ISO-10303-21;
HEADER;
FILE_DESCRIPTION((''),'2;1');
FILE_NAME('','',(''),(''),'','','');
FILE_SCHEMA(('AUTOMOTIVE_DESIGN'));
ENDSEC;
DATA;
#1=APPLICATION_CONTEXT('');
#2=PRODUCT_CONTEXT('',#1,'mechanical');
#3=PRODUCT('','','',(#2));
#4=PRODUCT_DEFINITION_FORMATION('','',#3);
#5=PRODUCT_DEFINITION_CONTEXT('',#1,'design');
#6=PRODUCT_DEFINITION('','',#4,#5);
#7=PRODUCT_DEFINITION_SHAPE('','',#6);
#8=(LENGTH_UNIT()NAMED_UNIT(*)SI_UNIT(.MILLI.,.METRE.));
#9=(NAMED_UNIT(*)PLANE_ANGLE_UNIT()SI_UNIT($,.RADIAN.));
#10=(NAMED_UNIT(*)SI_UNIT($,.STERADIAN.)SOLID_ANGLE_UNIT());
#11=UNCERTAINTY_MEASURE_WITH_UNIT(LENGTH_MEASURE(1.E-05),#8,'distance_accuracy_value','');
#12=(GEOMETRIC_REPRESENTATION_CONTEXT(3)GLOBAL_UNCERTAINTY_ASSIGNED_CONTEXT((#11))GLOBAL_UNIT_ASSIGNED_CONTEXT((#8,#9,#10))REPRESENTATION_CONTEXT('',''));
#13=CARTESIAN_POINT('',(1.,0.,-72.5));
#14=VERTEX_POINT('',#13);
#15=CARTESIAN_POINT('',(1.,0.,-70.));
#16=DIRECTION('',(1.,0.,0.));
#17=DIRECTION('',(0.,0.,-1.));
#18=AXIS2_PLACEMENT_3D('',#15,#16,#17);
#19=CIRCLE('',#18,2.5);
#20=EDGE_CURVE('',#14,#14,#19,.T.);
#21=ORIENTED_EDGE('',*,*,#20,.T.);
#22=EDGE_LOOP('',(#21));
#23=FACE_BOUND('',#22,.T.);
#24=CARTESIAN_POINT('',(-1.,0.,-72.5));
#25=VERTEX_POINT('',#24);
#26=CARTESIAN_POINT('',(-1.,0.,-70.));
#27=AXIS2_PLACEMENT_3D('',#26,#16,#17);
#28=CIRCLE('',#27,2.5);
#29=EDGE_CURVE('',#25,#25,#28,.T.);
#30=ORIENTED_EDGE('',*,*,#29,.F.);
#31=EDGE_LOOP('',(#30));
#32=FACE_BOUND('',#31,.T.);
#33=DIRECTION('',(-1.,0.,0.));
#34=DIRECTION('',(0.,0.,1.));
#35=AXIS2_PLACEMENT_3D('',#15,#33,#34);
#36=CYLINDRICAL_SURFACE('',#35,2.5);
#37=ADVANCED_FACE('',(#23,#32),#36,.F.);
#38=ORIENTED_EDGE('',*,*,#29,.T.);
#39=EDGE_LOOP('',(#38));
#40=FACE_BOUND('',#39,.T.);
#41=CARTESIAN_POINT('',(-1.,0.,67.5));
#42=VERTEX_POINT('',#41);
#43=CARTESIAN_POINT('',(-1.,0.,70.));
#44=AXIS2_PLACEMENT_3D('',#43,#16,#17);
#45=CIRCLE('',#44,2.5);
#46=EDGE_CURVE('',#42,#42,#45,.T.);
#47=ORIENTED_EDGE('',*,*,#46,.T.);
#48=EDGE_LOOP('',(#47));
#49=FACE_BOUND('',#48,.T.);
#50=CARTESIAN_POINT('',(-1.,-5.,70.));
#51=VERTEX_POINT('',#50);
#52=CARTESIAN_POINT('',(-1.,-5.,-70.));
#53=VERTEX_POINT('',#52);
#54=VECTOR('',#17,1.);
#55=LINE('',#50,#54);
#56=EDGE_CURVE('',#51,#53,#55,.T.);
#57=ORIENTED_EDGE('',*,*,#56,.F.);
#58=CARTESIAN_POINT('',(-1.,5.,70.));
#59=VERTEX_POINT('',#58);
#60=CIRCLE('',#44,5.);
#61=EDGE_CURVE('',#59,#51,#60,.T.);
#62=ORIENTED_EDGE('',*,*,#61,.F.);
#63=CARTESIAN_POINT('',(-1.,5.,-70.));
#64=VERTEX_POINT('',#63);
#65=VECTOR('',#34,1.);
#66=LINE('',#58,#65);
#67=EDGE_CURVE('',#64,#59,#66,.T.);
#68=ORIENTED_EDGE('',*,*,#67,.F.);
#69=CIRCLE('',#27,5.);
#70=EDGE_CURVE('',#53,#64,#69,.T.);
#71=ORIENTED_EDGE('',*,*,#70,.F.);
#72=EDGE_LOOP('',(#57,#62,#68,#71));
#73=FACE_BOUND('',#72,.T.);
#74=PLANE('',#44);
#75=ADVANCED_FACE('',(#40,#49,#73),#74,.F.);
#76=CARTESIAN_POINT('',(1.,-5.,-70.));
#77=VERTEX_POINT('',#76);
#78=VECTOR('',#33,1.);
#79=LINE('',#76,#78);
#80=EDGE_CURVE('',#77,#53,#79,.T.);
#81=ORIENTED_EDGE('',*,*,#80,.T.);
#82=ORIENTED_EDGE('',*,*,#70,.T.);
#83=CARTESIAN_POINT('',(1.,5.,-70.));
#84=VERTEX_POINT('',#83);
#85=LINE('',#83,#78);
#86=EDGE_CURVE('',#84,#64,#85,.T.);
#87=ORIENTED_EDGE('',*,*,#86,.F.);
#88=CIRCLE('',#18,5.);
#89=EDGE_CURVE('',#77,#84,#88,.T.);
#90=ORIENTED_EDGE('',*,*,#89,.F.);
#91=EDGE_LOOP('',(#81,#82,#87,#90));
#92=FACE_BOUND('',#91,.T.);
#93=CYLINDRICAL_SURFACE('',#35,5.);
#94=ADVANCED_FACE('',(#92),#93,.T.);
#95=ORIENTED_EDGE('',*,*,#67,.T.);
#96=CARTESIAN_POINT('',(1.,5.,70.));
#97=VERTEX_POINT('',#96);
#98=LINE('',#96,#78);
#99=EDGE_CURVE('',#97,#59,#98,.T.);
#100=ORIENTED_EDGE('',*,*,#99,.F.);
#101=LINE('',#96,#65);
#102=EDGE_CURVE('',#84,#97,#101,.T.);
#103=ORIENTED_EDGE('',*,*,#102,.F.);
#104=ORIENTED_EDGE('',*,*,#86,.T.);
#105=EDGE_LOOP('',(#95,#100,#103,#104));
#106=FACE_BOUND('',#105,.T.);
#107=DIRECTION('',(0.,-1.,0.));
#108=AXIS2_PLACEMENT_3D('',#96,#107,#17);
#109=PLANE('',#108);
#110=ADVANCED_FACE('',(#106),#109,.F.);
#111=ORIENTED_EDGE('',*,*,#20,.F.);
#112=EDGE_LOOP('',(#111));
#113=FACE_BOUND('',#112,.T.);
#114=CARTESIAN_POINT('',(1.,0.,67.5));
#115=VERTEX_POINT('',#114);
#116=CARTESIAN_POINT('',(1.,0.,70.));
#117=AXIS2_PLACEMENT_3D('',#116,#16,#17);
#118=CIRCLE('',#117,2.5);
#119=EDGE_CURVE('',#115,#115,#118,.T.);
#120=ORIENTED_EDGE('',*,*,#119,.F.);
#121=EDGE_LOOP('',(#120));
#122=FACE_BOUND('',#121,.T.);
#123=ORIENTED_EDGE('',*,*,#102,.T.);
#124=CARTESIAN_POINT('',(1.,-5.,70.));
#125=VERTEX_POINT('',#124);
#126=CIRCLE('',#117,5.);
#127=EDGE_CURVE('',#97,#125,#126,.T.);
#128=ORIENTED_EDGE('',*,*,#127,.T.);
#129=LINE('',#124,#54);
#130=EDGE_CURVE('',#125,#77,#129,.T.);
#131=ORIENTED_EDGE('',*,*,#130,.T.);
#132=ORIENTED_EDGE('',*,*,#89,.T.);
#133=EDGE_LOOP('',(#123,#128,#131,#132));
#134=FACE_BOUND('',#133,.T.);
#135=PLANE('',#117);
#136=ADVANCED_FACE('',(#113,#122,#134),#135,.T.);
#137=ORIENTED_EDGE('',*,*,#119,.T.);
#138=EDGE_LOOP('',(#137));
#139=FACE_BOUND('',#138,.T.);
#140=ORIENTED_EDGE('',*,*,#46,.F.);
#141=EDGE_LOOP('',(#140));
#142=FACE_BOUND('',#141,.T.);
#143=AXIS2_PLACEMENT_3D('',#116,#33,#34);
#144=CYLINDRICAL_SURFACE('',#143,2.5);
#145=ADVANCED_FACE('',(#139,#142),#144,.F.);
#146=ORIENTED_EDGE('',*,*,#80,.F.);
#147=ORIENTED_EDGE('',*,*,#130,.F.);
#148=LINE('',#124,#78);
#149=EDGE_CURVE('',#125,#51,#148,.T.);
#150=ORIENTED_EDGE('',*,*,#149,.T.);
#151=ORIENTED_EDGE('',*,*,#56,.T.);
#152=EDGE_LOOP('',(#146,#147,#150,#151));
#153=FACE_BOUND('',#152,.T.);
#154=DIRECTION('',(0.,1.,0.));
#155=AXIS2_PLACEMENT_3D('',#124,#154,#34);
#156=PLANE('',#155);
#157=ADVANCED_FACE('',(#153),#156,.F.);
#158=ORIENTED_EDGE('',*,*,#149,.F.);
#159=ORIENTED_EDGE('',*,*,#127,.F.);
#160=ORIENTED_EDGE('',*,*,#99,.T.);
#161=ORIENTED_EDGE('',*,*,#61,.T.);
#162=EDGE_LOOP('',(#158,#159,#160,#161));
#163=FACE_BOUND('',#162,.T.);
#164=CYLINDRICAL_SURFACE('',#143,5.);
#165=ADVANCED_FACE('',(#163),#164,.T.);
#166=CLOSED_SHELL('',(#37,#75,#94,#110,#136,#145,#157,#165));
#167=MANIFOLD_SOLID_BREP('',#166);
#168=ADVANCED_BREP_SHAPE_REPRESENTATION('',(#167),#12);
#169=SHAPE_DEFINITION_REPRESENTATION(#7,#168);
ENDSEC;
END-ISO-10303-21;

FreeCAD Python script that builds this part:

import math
import FreeCAD as App
import Part
import Sketcher

V = App.Vector
Q = App.Units.Quantity

doc = App.newDocument("Part")
body = doc.addObject("PartDesign::Body", "Body")

# Sketch on YZ plane
sketch1 = body.newObject("Sketcher::SketchObject", "Sketch")
sketch1.AttachmentSupport = (doc.getObject("YZ_Plane"), [""])
sketch1.MapMode = "FlatFace"
sketch1.addGeometry(Part.LineSegment(V(5, -70, 0), V(5, 70, 0)), False)
sketch1.addGeometry(Part.ArcOfCircle(Part.Circle(V(0, 70, 0), V(0, 0, 1), 5), math.radians(0), math.radians(180)), False)
sketch1.addGeometry(Part.LineSegment(V(-5, 70, 0), V(-5, -70, 0)), False)
sketch1.addGeometry(Part.ArcOfCircle(Part.Circle(V(0, -70, 0), V(0, 0, 1), 5), math.radians(180), math.radians(360)), False)
sketch1.addGeometry(Part.Circle(V(0, -70, 0), V(0, 0, 1), 2.5), False)
sketch1.addGeometry(Part.Circle(V(0, 70, 0), V(0, 0, 1), 2.5), False)
sketch1.addConstraint(Sketcher.Constraint("Tangent", 0, 2, 1, 1))
sketch1.addConstraint(Sketcher.Constraint("Tangent", 1, 2, 2, 1))
sketch1.addConstraint(Sketcher.Constraint("Tangent", 2, 2, 3, 1))
sketch1.addConstraint(Sketcher.Constraint("Tangent", 3, 2, 0, 1))
sketch1.addConstraint(Sketcher.Constraint("Vertical", 0))
sketch1.addConstraint(Sketcher.Constraint("Vertical", 2))
sketch1.addConstraint(Sketcher.Constraint("Coincident", 4, 3, 3, 3))
sketch1.addConstraint(Sketcher.Constraint("Coincident", 5, 3, 1, 3))
sketch1.addConstraint(Sketcher.Constraint("Equal", 4, 5))
sketch1.addConstraint(Sketcher.Constraint("Symmetric", 1, 3, 3, 3, -1, 1))
sketch1.addConstraint(Sketcher.Constraint("Diameter", 4, Q("5 mm")))
sketch1.addConstraint(Sketcher.Constraint("Radius", 1, Q("5 mm")))
sketch1.addConstraint(Sketcher.Constraint("DistanceY", 0, 1, 0, 2, Q("140 mm")))
pad1 = body.newObject("PartDesign::Pad", "Pad")
pad1.Profile = sketch1
pad1.Length = 2
pad1.Midplane = True

doc.recompute()
